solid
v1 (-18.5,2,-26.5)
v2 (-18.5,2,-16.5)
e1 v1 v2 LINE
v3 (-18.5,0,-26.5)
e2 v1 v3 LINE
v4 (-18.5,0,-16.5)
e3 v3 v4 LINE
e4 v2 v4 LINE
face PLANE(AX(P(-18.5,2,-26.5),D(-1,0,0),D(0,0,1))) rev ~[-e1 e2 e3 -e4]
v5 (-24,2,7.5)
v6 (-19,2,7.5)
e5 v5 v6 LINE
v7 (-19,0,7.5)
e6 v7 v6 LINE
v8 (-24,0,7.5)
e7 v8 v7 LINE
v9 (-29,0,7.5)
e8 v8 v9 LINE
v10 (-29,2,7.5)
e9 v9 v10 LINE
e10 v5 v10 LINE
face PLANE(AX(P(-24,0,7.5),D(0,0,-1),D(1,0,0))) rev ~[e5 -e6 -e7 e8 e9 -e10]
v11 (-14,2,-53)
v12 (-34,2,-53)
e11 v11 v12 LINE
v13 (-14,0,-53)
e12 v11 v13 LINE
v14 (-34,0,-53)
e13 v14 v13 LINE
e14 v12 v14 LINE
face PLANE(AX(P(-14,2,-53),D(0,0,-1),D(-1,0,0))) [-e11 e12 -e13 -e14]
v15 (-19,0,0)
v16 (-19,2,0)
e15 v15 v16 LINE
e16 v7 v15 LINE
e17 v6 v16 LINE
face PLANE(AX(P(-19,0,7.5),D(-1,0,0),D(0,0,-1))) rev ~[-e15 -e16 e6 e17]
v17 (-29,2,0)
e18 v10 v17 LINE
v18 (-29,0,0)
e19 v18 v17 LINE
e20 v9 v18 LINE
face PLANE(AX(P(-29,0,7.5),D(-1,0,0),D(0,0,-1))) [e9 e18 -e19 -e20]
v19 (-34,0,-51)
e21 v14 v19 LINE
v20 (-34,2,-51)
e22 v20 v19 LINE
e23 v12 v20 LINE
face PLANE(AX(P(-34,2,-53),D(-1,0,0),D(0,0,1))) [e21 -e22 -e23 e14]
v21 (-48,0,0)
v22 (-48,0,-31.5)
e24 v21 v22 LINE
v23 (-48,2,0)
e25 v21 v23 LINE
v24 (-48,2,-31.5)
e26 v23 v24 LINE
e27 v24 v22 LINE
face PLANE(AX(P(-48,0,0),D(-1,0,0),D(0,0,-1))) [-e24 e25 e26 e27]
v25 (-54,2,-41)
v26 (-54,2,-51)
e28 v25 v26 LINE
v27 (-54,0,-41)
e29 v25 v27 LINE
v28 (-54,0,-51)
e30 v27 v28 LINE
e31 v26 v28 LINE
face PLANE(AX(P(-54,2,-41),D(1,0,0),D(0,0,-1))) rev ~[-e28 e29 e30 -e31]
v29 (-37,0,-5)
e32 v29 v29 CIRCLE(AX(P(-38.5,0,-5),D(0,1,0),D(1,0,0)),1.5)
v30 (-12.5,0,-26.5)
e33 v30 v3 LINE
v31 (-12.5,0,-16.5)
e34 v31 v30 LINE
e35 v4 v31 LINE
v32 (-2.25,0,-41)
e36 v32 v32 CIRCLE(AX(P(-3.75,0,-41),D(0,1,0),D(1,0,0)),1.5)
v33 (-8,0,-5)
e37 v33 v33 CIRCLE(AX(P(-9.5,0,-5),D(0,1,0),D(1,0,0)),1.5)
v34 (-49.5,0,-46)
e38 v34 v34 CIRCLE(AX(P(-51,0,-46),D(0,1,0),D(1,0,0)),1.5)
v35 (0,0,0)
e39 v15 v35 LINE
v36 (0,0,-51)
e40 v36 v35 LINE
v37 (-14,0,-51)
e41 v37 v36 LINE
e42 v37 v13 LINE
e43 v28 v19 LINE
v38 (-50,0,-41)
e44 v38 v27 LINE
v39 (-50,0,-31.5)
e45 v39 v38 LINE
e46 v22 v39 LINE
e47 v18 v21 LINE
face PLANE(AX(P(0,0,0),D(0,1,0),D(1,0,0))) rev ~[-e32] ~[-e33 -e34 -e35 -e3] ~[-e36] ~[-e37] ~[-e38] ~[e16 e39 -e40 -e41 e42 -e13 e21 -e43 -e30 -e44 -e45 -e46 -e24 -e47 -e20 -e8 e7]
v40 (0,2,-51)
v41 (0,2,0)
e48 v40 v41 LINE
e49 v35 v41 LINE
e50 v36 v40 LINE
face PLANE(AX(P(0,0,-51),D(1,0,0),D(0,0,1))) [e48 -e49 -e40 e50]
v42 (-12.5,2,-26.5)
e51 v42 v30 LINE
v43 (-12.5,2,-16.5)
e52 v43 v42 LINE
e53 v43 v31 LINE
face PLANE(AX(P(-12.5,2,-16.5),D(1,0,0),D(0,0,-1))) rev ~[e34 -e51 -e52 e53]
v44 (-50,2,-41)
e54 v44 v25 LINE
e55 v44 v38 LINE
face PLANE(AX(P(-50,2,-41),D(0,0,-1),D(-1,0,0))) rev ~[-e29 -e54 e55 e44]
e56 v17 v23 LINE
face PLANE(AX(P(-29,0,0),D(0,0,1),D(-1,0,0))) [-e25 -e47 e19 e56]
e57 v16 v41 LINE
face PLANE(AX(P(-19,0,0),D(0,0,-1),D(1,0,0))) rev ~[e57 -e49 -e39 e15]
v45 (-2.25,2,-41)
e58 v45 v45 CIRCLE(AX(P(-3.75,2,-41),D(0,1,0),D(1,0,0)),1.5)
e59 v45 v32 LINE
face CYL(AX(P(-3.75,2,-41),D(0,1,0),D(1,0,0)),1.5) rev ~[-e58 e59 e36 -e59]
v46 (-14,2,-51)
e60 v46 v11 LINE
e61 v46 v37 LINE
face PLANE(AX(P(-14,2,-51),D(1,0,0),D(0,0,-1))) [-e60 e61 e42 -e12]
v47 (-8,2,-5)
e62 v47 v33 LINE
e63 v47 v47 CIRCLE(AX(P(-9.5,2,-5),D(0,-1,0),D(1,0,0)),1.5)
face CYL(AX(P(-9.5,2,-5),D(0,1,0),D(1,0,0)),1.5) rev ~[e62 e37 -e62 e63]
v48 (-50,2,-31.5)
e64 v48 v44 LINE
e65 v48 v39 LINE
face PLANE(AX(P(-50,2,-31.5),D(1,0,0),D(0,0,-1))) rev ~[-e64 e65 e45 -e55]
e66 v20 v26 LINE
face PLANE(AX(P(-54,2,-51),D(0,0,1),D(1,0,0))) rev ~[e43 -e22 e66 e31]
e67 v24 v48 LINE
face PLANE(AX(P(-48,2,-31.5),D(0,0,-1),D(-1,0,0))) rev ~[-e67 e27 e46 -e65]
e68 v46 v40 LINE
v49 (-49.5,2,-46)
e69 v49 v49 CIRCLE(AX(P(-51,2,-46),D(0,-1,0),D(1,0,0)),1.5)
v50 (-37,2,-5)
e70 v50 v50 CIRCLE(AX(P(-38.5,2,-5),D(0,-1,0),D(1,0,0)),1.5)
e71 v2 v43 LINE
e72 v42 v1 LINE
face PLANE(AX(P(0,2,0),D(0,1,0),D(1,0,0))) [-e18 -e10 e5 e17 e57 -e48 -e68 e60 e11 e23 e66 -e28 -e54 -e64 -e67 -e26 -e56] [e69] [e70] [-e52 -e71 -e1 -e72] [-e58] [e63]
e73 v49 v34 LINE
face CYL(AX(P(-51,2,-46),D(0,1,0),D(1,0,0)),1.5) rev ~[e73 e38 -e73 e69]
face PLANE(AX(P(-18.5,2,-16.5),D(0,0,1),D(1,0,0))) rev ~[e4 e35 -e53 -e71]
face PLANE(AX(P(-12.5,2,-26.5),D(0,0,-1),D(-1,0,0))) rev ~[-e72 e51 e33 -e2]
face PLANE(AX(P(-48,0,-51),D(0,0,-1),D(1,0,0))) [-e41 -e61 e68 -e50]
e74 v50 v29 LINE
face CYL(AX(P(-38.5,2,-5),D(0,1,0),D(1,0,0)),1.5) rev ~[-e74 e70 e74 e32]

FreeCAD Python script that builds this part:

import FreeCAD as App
import Part
import Sketcher

V = App.Vector
Q = App.Units.Quantity


def add_polygon(sketch, points):
    """Adds a closed chain of lines whose ends are joined by coincident constraints."""
    first, n = sketch.GeometryCount, len(points)
    for a, b in zip(points, points[1:] + points[:1]):
        sketch.addGeometry(Part.LineSegment(App.Vector(*a, 0), App.Vector(*b, 0)), False)
    for i in range(n):
        sketch.addConstraint(Sketcher.Constraint("Coincident", first + i, 2, first + (i + 1) % n, 1))

doc = App.newDocument("Part")
body = doc.addObject("PartDesign::Body", "Body")

sketch1 = body.newObject("Sketcher::SketchObject", "Sketch")
sketch1.AttachmentSupport = (doc.getObject("XZ_Plane"), [""])
sketch1.MapMode = "FlatFace"
add_polygon(sketch1, [(-48, -51), (-48, 0), (-29, 0), (-29, 7.5), (-24, 7.5), (-19, 7.5), (-19, 0), (0, 0), (0, -51)])
sketch1.addGeometry(Part.Circle(V(-24, -1.2, 0), V(0, 0, 1), 1.5), False)
sketch1.addConstraint(Sketcher.Constraint("Vertical", 0))
sketch1.addConstraint(Sketcher.Constraint("Horizontal", 1))
sketch1.addConstraint(Sketcher.Constraint("Vertical", 2))
sketch1.addConstraint(Sketcher.Constraint("Horizontal", 3))
sketch1.addConstraint(Sketcher.Constraint("Horizontal", 4))
sketch1.addConstraint(Sketcher.Constraint("Vertical", 5))
sketch1.addConstraint(Sketcher.Constraint("Horizontal", 6))
sketch1.addConstraint(Sketcher.Constraint("Vertical", 7))
sketch1.addConstraint(Sketcher.Constraint("Horizontal", 8))
sketch1.addConstraint(Sketcher.Constraint("Coincident", 6, 2, -1, 1))
sketch1.addConstraint(Sketcher.Constraint("PointOnObject", 0, 2, -1))
sketch1.addConstraint(Sketcher.Constraint("Vertical", 9, 3, 3, 2))
sketch1.addConstraint(Sketcher.Constraint("Equal", 3, 4))
sketch1.addConstraint(Sketcher.Constraint("Equal", 1, 6))
sketch1.addConstraint(Sketcher.Constraint("Diameter", 9, Q("3 mm")))
sketch1.addConstraint(Sketcher.Constraint("DistanceX", 3, 1, 3, 2, Q("5 mm")))
sketch1.addConstraint(Sketcher.Constraint("DistanceX", 8, 2, 8, 1, Q("48 mm")))
sketch1.addConstraint(Sketcher.Constraint("DistanceY", 0, 1, 0, 2, Q("51 mm")))
sketch1.addConstraint(Sketcher.Constraint("DistanceY", 9, 3, 2, 2, Q("8.75 mm")))
sketch1.addConstraint(Sketcher.Constraint("DistanceY", 2, 1, 2, 2, Q("7.5 mm")))
pad1 = body.newObject("PartDesign::Pad", "Pad")
pad1.Profile = sketch1
pad1.Length = 2
pad1.Reversed = True

sketch2 = body.newObject("Sketcher::SketchObject", "Sketch001")
sketch2.AttachmentSupport = (doc.getObject("XZ_Plane"), [""])
sketch2.MapMode = "FlatFace"
sketch2.AttachmentOffset = App.Placement(V(0, 0, -2), App.Rotation())
add_polygon(sketch2, [(-14, -51), (-14, -53), (-34, -53), (-34, -51)])
sketch2.addConstraint(Sketcher.Constraint("Vertical", 0))
sketch2.addConstraint(Sketcher.Constraint("Horizontal", 1))
sketch2.addConstraint(Sketcher.Constraint("Vertical", 2))
sketch2.addConstraint(Sketcher.Constraint("Horizontal", 3))
sketch2.addConstraint(Sketcher.Constraint("DistanceX", 1, 2, 1, 1, Q("20 mm")))
sketch2.addConstraint(Sketcher.Constraint("DistanceY", 0, 2, 0, 1, Q("2 mm")))
sketch2.addConstraint(Sketcher.Constraint("DistanceX", 0, 2, -1, 1, Q("14 mm")))
sketch2.addConstraint(Sketcher.Constraint("DistanceY", 0, 2, -1, 1, Q("53 mm")))
pad2 = body.newObject("PartDesign::Pad", "Pad001")
pad2.Profile = sketch2
pad2.Length = 2

sketch3 = body.newObject("Sketcher::SketchObject", "Sketch002")
sketch3.AttachmentSupport = (doc.getObject("XZ_Plane"), [""])
sketch3.MapMode = "FlatFace"
sketch3.AttachmentOffset = App.Placement(V(0, 0, -2), App.Rotation())
add_polygon(sketch3, [(-12, -26), (-18, -26), (-18, -16), (-12, -16)])
sketch3.addConstraint(Sketcher.Constraint("Horizontal", 0))
sketch3.addConstraint(Sketcher.Constraint("Vertical", 1))
sketch3.addConstraint(Sketcher.Constraint("Horizontal", 2))
sketch3.addConstraint(Sketcher.Constraint("Vertical", 3))
sketch3.addConstraint(Sketcher.Constraint("DistanceX", 0, 2, 0, 1, Q("6 mm")))
sketch3.addConstraint(Sketcher.Constraint("DistanceY", 1, 1, 1, 2, Q("10 mm")))
sketch3.addConstraint(Sketcher.Constraint("DistanceX", 0, 2, -1, 1, Q("18.5 mm")))
sketch3.addConstraint(Sketcher.Constraint("DistanceY", 0, 2, -1, 1, Q("26.5 mm")))
pocket1 = body.newObject("PartDesign::Pocket", "Pocket")
pocket1.Profile = sketch3
pocket1.Length = 2
pocket1.Reversed = True

sketch4 = body.newObject("Sketcher::SketchObject", "Sketch003")
sketch4.AttachmentSupport = (doc.getObject("XZ_Plane"), [""])
sketch4.MapMode = "FlatFace"
sketch4.AttachmentOffset = App.Placement(V(0, 0, -2), App.Rotation())
sketch4.addGeometry(Part.Circle(V(-24, -1.2, 0), V(0, 0, 1), 1.5), False)
sketch4.addConstraint(Sketcher.Constraint("Diameter", 0, Q("3 mm")))
sketch4.addConstraint(Sketcher.Constraint("DistanceX", 0, 3, -1, 1, Q("24 mm")))
sketch4.addConstraint(Sketcher.Constraint("DistanceY", 0, 3, -1, 1, Q("1.25 mm")))
pad3 = body.newObject("PartDesign::Pad", "Pad002")
pad3.Profile = sketch4
pad3.Length = 2

sketch5 = body.newObject("Sketcher::SketchObject", "Sketch004")
sketch5.AttachmentSupport = (doc.getObject("XZ_Plane"), [""])
sketch5.MapMode = "FlatFace"
sketch5.AttachmentOffset = App.Placement(V(0, 0, -2), App.Rotation())
add_polygon(sketch5, [(-48, -31.5), (-48, -51), (-54, -51), (-54, -41), (-50, -41), (-50, -31.5)])
sketch5.addConstraint(Sketcher.Constraint("Vertical", 0))
sketch5.addConstraint(Sketcher.Constraint("Horizontal", 1))
sketch5.addConstraint(Sketcher.Constraint("Vertical", 2))
sketch5.addConstraint(Sketcher.Constraint("Horizontal", 3))
sketch5.addConstraint(Sketcher.Constraint("Vertical", 4))
sketch5.addConstraint(Sketcher.Constraint("Horizontal", 5))
sketch5.addConstraint(Sketcher.Constraint("DistanceX", 3, 1, 3, 2, Q("4 mm")))
sketch5.addConstraint(Sketcher.Constraint("DistanceX", 5, 1, 5, 2, Q("2 mm")))
sketch5.addConstraint(Sketcher.Constraint("DistanceY", 0, 2, 0, 1, Q("19.5 mm")))
sketch5.addConstraint(Sketcher.Constraint("DistanceY", 4, 1, 4, 2, Q("9.5 mm")))
sketch5.addConstraint(Sketcher.Constraint("DistanceX", 0, 2, -1, 1, Q("48 mm")))
sketch5.addConstraint(Sketcher.Constraint("DistanceY", 0, 2, -1, 1, Q("51 mm")))
pad4 = body.newObject("PartDesign::Pad", "Pad003")
pad4.Profile = sketch5
pad4.Length = 2

sketch6 = body.newObject("Sketcher::SketchObject", "Sketch005")
sketch6.AttachmentSupport = (doc.getObject("XZ_Plane"), [""])
sketch6.MapMode = "FlatFace"
sketch6.AttachmentOffset = App.Placement(V(0, 0, -2), App.Rotation())
sketch6.addGeometry(Part.Circle(V(-38.5, -5, 0), V(0, 0, 1), 1.5), False)
sketch6.addGeometry(Part.Circle(V(-9.5, -5, 0), V(0, 0, 1), 1.5), False)
sketch6.addGeometry(Part.Circle(V(-3.8, -41, 0), V(0, 0, 1), 1.5), False)
sketch6.addGeometry(Part.Circle(V(-51, -46, 0), V(0, 0, 1), 1.5), False)
sketch6.addConstraint(Sketcher.Constraint("Equal", 0, 1))
sketch6.addConstraint(Sketcher.Constraint("Equal", 1, 2))
sketch6.addConstraint(Sketcher.Constraint("Equal", 2, 3))
sketch6.addConstraint(Sketcher.Constraint("Horizontal", 0, 3, 1, 3))
sketch6.addConstraint(Sketcher.Constraint("Diameter", 0, Q("3 mm")))
sketch6.addConstraint(Sketcher.Constraint("DistanceY", 0, 3, -1, 1, Q("5 mm")))
sketch6.addConstraint(Sketcher.Constraint("DistanceY", 3, 3, 2, 3, Q("5 mm")))
sketch6.addConstraint(Sketcher.Constraint("DistanceX", 0, 3, -1, 1, Q("38.5 mm")))
sketch6.addConstraint(Sketcher.Constraint("DistanceX", 1, 3, -1, 1, Q("9.5 mm")))
sketch6.addConstraint(Sketcher.Constraint("DistanceX", 2, 3, -1, 1, Q("3.75 mm")))
sketch6.addConstraint(Sketcher.Constraint("DistanceY", 2, 3, -1, 1, Q("41 mm")))
sketch6.addConstraint(Sketcher.Constraint("DistanceX", 3, 3, -1, 1, Q("51 mm")))
pocket2 = body.newObject("PartDesign::Pocket", "Pocket001")
pocket2.Profile = sketch6
pocket2.Length = 2
pocket2.Reversed = True

doc.recompute()
